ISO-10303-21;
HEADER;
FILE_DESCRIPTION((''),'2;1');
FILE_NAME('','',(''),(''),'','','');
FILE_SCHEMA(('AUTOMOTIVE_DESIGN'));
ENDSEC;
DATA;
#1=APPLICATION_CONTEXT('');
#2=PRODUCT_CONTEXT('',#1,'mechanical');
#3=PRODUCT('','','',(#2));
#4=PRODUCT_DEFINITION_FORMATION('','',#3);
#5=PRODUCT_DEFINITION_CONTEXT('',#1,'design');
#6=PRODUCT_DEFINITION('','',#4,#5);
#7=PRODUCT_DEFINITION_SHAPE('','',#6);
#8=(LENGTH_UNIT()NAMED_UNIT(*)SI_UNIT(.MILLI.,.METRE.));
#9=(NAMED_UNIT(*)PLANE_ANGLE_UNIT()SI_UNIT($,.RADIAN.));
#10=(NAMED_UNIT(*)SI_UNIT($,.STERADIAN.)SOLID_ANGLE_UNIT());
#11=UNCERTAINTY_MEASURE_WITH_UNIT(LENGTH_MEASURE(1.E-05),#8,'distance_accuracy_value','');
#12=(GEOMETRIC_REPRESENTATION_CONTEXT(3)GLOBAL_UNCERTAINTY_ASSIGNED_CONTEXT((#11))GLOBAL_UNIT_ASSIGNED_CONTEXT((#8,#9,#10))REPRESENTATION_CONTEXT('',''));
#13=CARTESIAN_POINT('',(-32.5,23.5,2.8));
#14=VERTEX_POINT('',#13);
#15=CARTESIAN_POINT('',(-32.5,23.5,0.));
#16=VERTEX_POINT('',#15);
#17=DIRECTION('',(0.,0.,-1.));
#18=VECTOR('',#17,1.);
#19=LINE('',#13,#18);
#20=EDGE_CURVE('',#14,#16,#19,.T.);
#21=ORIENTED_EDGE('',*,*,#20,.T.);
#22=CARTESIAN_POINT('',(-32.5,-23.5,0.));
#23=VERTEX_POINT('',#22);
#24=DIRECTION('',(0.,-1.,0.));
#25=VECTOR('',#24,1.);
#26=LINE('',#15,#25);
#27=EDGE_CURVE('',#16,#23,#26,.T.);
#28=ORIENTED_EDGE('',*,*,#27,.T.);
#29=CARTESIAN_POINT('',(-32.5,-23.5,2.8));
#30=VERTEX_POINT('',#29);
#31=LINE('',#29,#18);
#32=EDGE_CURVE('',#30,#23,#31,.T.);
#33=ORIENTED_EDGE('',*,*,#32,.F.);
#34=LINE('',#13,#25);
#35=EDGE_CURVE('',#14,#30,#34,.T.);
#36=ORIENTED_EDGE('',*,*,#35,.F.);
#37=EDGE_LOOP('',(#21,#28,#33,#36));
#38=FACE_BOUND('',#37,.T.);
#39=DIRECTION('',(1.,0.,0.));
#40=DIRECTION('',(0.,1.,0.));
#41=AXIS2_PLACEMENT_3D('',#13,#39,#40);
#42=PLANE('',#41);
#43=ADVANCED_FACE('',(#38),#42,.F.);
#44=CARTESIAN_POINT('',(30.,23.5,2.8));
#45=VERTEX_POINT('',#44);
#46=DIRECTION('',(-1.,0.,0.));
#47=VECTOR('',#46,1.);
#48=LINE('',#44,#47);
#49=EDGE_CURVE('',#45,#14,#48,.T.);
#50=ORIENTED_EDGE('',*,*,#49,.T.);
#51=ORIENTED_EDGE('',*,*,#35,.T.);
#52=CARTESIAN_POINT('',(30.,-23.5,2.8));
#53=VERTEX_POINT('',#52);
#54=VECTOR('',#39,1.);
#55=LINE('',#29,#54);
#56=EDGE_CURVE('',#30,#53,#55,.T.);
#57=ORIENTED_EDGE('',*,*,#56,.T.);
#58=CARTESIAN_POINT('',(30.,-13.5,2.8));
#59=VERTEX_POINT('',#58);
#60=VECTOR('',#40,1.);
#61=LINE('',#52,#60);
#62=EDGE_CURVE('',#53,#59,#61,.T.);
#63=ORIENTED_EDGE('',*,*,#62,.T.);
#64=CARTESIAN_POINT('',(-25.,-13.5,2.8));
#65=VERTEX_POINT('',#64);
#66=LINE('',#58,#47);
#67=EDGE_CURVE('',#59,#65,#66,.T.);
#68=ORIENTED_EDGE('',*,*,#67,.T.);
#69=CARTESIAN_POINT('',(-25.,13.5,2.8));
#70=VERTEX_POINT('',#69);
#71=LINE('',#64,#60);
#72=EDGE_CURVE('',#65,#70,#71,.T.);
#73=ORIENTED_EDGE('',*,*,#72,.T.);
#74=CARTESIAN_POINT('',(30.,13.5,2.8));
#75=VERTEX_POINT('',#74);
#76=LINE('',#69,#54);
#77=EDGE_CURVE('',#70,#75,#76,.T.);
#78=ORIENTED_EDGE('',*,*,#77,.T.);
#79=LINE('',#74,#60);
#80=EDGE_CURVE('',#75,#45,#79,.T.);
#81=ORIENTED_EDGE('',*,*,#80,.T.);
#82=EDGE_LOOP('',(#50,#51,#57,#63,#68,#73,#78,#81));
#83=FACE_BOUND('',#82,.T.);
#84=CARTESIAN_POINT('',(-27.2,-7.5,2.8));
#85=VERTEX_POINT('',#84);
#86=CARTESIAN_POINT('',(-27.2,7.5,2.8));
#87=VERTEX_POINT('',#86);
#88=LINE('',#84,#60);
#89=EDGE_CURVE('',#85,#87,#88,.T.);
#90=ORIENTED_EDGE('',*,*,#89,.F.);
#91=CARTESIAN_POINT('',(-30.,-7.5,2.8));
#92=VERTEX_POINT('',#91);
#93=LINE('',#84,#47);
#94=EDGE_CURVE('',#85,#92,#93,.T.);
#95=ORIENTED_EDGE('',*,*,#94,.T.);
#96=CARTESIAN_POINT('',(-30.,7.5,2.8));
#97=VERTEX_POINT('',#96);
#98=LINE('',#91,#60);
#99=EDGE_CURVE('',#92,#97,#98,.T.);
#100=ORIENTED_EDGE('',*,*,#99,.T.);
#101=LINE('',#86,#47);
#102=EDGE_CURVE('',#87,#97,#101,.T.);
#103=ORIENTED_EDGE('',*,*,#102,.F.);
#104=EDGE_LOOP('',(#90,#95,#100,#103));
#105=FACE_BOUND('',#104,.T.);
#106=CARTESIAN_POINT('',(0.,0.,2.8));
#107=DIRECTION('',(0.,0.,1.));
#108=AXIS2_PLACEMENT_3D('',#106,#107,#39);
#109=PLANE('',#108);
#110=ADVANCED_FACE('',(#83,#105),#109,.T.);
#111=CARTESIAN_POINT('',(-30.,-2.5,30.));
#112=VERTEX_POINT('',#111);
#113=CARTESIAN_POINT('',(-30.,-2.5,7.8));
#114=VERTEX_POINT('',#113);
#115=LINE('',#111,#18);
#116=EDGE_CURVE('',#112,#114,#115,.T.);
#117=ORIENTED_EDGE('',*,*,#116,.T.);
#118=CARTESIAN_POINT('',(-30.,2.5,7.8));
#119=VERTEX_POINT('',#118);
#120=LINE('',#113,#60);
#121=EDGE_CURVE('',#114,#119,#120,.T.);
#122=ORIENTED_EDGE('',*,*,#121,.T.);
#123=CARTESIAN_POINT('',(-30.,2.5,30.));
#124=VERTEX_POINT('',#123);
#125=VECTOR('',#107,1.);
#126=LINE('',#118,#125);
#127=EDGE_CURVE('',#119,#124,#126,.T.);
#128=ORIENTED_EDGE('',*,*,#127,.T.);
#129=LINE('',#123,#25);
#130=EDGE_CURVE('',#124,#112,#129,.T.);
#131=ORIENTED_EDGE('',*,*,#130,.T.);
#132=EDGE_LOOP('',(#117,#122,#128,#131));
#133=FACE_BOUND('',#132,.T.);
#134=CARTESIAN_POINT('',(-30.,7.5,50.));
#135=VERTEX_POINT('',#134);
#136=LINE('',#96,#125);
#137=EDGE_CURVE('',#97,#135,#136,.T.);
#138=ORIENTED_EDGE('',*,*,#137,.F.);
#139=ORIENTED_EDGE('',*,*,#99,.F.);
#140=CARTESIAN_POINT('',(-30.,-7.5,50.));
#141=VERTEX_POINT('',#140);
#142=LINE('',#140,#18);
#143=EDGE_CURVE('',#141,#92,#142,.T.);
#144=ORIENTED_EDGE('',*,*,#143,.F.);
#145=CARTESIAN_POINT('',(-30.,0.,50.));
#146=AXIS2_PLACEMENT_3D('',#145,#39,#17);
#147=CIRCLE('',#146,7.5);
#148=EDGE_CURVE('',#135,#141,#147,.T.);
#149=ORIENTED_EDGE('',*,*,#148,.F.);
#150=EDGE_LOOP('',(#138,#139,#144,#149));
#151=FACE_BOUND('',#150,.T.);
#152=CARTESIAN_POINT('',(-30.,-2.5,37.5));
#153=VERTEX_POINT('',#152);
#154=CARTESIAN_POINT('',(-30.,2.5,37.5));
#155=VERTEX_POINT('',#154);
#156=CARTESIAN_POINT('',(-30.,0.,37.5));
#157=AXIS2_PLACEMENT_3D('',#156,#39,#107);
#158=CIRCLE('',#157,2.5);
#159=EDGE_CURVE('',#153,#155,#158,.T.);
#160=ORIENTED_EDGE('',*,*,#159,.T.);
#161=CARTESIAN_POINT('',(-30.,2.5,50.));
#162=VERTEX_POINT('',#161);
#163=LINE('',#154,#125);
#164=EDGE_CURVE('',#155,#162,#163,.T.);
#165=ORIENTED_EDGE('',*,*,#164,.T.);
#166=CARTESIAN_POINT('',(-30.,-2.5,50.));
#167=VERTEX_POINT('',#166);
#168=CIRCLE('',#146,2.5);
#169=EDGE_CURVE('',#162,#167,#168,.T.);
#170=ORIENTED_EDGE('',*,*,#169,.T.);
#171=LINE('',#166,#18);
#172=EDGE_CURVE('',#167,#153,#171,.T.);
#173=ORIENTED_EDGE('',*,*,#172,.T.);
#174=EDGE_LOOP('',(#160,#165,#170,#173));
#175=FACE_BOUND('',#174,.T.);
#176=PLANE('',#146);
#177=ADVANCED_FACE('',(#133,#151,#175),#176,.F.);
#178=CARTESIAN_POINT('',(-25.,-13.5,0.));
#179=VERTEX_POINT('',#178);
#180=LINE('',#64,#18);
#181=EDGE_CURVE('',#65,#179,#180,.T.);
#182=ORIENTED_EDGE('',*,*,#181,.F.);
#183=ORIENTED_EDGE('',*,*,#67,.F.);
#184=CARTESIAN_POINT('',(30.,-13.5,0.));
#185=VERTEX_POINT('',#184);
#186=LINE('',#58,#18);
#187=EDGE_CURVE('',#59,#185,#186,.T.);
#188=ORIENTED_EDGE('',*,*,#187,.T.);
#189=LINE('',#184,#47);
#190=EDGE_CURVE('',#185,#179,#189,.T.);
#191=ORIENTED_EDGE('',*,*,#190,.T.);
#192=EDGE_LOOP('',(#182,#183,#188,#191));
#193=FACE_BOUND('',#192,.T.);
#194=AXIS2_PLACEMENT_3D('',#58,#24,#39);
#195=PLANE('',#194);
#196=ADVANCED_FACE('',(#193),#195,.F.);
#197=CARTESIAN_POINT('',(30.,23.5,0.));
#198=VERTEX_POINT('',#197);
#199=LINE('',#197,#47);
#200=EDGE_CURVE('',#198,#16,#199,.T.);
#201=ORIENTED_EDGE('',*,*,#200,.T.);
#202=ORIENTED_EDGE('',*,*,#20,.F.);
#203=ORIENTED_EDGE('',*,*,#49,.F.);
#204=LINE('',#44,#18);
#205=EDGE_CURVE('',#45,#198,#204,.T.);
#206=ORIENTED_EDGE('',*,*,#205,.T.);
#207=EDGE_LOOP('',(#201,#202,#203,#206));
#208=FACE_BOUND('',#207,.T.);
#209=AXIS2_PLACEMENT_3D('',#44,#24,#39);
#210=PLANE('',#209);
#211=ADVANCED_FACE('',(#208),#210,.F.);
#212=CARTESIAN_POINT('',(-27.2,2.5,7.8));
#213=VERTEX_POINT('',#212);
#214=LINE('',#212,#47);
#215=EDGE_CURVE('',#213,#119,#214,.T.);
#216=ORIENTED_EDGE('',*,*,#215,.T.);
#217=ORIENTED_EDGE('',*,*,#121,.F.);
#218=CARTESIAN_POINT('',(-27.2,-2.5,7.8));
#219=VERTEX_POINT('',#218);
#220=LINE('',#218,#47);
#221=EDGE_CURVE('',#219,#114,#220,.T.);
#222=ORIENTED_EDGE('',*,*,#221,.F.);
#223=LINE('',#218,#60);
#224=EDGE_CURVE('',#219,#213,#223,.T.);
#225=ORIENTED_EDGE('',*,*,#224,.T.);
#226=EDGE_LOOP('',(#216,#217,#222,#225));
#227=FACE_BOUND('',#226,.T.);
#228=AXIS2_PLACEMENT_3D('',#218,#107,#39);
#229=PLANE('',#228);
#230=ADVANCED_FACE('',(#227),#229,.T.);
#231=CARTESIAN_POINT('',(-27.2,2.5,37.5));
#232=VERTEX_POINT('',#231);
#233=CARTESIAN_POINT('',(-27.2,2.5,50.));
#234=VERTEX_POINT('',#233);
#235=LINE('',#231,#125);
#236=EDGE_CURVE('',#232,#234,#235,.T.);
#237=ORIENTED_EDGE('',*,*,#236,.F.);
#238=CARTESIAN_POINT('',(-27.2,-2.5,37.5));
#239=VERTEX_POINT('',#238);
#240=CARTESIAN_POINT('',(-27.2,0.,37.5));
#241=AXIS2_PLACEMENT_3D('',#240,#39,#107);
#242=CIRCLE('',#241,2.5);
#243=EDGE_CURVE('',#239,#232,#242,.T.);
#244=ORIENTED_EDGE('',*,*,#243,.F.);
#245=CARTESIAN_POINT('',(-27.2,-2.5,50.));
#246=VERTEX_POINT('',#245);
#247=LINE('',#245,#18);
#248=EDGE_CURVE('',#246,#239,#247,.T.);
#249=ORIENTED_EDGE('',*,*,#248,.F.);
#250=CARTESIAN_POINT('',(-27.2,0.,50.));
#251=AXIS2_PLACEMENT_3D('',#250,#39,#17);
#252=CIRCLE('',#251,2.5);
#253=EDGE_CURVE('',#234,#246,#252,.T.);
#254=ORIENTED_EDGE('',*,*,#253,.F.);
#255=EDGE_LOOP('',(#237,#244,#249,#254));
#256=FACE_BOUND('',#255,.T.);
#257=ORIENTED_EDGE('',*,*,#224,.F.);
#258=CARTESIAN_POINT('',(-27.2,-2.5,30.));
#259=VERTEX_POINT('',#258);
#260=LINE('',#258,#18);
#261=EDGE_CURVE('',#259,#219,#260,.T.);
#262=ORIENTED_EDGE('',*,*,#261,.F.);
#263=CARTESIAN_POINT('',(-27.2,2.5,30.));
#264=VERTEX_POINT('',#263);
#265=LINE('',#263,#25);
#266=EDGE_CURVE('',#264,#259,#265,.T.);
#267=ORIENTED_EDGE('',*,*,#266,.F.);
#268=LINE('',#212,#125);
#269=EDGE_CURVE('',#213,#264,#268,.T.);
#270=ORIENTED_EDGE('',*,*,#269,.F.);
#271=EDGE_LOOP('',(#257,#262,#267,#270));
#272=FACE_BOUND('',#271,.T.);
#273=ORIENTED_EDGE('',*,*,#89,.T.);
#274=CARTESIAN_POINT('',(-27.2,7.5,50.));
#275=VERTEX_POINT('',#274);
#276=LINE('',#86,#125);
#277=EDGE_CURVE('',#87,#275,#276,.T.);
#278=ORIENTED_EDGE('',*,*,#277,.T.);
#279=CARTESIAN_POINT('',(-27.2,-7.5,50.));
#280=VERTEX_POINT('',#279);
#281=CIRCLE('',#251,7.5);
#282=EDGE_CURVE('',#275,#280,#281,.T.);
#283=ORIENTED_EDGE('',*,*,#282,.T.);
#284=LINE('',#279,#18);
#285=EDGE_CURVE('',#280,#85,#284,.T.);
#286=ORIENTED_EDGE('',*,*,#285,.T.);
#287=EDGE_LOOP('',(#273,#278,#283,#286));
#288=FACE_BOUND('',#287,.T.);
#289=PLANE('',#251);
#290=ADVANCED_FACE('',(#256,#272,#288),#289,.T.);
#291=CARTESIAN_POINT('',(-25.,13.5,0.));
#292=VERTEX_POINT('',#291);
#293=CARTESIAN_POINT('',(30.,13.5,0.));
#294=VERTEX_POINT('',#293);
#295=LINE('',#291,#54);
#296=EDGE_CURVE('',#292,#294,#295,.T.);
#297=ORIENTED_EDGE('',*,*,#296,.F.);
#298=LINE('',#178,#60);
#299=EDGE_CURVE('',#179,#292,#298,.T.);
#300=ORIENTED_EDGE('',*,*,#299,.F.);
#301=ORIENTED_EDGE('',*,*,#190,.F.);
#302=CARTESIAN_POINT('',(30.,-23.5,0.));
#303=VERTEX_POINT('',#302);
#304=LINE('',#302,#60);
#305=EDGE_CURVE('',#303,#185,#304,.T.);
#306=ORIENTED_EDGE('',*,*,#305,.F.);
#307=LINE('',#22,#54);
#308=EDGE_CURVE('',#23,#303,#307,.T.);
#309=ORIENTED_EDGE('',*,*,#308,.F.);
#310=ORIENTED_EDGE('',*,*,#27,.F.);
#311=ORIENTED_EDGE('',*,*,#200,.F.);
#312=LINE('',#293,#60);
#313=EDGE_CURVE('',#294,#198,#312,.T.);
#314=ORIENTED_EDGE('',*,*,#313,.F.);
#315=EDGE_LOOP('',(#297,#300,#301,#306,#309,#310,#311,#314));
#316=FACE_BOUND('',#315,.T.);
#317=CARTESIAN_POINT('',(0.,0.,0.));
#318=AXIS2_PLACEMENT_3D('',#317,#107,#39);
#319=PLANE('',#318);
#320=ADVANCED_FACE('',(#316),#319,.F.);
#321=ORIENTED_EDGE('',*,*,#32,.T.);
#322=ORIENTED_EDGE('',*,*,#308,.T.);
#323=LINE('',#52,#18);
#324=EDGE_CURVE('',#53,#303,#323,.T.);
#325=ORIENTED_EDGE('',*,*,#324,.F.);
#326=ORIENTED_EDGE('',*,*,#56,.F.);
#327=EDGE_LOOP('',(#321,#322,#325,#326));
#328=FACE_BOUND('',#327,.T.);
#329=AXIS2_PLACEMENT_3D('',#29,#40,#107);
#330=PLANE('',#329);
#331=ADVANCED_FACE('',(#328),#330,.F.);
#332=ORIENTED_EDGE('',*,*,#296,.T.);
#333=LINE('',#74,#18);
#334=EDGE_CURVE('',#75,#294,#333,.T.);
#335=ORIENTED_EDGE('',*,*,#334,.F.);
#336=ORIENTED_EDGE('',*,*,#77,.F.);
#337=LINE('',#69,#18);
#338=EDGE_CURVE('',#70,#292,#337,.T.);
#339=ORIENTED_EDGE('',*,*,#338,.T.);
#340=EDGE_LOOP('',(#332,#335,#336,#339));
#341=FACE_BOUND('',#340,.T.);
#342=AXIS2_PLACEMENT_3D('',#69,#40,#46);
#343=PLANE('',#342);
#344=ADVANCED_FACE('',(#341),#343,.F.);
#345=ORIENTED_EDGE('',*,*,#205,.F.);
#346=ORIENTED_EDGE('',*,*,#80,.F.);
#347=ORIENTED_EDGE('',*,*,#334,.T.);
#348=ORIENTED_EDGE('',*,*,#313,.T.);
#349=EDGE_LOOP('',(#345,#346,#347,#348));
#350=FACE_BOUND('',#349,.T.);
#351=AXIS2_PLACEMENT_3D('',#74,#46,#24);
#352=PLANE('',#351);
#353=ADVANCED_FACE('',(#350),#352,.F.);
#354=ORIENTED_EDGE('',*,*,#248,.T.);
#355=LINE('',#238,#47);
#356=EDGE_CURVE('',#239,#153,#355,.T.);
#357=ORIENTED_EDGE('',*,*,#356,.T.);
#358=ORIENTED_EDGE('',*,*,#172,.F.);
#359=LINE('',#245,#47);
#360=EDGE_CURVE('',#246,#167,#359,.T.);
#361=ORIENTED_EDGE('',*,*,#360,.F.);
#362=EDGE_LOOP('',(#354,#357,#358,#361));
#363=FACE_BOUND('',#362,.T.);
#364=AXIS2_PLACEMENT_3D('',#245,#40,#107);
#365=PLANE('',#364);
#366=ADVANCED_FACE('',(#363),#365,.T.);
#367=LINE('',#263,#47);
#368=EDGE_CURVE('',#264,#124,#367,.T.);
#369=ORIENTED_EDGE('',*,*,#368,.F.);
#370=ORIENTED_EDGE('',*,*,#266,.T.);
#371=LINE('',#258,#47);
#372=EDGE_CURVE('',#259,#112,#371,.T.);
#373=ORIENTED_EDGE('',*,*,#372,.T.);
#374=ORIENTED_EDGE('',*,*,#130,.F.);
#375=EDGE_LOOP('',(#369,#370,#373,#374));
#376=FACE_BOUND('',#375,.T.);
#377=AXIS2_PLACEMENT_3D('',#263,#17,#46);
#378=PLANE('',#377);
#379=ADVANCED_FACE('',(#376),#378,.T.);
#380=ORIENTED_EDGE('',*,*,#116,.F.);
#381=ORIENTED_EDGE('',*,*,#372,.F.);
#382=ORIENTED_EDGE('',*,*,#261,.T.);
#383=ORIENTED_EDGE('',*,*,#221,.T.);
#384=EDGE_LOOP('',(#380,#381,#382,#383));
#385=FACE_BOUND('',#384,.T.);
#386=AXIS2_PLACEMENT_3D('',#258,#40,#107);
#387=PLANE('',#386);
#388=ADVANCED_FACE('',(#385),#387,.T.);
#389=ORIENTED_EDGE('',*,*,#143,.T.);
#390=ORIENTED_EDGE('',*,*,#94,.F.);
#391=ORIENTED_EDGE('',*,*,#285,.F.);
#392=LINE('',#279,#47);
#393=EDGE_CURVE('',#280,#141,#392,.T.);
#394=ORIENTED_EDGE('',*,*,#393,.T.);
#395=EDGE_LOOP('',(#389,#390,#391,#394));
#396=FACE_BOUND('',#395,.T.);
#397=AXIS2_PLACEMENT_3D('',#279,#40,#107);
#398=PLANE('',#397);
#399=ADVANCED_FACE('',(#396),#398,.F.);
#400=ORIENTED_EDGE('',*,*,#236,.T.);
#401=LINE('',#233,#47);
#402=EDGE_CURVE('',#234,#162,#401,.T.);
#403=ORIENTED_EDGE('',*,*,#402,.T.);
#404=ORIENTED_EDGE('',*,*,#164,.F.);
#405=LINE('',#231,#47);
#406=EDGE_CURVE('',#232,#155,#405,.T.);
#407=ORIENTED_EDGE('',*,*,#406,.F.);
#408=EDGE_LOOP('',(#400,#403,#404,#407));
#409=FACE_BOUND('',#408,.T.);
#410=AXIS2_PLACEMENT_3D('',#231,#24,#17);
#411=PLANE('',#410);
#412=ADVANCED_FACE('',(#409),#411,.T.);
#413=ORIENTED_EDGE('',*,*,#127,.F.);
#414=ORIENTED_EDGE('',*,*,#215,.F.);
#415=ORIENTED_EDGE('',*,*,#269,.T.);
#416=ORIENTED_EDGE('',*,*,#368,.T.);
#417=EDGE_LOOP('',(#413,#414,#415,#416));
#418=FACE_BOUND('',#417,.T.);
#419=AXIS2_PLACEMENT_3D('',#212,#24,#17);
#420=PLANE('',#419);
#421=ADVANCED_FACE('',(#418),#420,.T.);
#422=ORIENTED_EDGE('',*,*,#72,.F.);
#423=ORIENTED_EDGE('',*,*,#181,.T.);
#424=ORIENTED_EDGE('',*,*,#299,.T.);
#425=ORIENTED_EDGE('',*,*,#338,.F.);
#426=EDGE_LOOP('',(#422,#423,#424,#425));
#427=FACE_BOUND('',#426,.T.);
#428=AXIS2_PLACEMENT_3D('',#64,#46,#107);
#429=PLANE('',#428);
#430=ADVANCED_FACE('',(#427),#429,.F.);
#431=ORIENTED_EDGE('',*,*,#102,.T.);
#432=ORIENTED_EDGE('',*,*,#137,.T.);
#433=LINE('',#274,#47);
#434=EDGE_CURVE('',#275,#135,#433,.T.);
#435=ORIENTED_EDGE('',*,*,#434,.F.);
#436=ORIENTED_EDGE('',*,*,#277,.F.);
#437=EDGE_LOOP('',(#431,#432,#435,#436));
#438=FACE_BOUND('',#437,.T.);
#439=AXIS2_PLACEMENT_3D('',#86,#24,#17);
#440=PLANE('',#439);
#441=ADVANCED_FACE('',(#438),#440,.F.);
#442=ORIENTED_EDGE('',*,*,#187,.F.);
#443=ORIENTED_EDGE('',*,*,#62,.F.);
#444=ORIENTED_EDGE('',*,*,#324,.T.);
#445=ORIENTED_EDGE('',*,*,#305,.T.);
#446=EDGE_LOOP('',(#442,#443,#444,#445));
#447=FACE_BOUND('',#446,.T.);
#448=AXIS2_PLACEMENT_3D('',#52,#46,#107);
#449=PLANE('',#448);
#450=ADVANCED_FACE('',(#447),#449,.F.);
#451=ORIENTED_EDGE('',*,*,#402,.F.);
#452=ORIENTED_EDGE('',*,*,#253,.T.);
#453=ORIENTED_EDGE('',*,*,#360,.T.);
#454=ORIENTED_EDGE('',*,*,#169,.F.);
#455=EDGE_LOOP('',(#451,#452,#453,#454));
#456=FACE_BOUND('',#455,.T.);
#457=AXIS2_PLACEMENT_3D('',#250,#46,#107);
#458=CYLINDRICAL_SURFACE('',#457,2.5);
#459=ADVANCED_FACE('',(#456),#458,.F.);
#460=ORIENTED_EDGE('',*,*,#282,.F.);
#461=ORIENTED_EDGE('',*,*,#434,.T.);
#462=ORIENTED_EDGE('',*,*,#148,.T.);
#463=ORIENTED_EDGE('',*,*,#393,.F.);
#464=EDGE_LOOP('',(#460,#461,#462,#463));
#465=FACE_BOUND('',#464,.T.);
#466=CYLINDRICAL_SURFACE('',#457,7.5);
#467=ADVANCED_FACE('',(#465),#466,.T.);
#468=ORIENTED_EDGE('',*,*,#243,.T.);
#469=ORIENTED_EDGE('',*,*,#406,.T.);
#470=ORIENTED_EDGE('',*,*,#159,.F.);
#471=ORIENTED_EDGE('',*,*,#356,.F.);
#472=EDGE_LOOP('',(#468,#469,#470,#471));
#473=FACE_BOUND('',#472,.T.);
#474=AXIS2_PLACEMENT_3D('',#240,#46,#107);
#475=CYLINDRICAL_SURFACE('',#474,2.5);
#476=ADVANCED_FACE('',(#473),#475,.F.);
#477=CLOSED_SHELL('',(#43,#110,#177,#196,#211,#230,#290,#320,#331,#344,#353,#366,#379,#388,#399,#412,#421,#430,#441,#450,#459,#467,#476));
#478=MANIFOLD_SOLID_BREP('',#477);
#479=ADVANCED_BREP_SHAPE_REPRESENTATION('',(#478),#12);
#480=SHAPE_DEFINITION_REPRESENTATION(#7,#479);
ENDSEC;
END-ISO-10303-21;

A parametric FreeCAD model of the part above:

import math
import FreeCAD as App
import Part
import Sketcher


def add_polygon(sketch, points):
    """Adds a closed chain of lines whose ends are joined by coincident constraints."""
    first, n = sketch.GeometryCount, len(points)
    for a, b in zip(points, points[1:] + points[:1]):
        sketch.addGeometry(Part.LineSegment(App.Vector(*a, 0), App.Vector(*b, 0)), False)
    for i in range(n):
        sketch.addConstraint(Sketcher.Constraint("Coincident", first + i, 2, first + (i + 1) % n, 1))

doc = App.newDocument("Part")
body = doc.addObject("PartDesign::Body", "Body")

sketch1 = body.newObject("Sketcher::SketchObject", "Sketch")
sketch1.AttachmentSupport = (doc.getObject("XY_Plane"), [""])
sketch1.MapMode = "FlatFace"
add_polygon(sketch1, [(30, 14), (30, 24), (-32, 24), (-32, -24), (30, -24), (30, -14), (-25, -14), (-25, 14)])
sketch1.addConstraint([
    Sketcher.Constraint("Vertical", 0),
    Sketcher.Constraint("Horizontal", 1),
    Sketcher.Constraint("Vertical", 2),
    Sketcher.Constraint("Horizontal", 3),
    Sketcher.Constraint("Vertical", 4),
    Sketcher.Constraint("Horizontal", 5),
    Sketcher.Constraint("Vertical", 6),
    Sketcher.Constraint("Horizontal", 7),
    Sketcher.Constraint("Symmetric", 0, 2, 3, 2, -1),
    Sketcher.Constraint("Equal", 0, 4),
    Sketcher.Constraint("DistanceX", 5, 2, 5, 1, 55.0),
    Sketcher.Constraint("DistanceY", 0, 1, 0, 2, 10.0),
    Sketcher.Constraint("DistanceY", 2, 2, 2, 1, 47.0),
    Sketcher.Constraint("DistanceX", 1, 2, 1, 1, 62.5),
    Sketcher.Constraint("DistanceX", -1, 1, 0, 2, 30.0),
])
pad1 = body.newObject("PartDesign::Pad", "Pad")
pad1.Profile = sketch1
pad1.Length = 2.8

sketch2 = body.newObject("Sketcher::SketchObject", "Sketch001")
sketch2.AttachmentSupport = (doc.getObject("YZ_Plane"), [""])
sketch2.MapMode = "FlatFace"
sketch2.AttachmentOffset = App.Placement(App.Vector(0, 0, -30), App.Rotation())
sketch2.addGeometry(Part.LineSegment(App.Vector(-7.5, 2.8, 0), App.Vector(7.5, 2.8, 0)), False)
sketch2.addGeometry(Part.LineSegment(App.Vector(7.5, 2.8, 0), App.Vector(7.5, 50, 0)), False)
sketch2.addGeometry(Part.ArcOfCircle(Part.Circle(App.Vector(0, 50, 0), App.Vector(0, 0, 1), 7.5), math.radians(0), math.radians(180)), False)
sketch2.addGeometry(Part.LineSegment(App.Vector(-7.5, 50, 0), App.Vector(-7.5, 2.8, 0)), False)
sketch2.addGeometry(Part.LineSegment(App.Vector(-2.5, 37.5, 0), App.Vector(-2.5, 50, 0)), False)
sketch2.addGeometry(Part.ArcOfCircle(Part.Circle(App.Vector(0, 50, 0), App.Vector(0, 0, 1), 2.5), math.radians(0), math.radians(180)), False)
sketch2.addGeometry(Part.LineSegment(App.Vector(2.5, 50, 0), App.Vector(2.5, 37.5, 0)), False)
sketch2.addGeometry(Part.ArcOfCircle(Part.Circle(App.Vector(0, 37.5, 0), App.Vector(0, 0, 1), 2.5), math.radians(180), math.radians(360)), False)
add_polygon(sketch2, [(-2.5, 7.8), (-2.5, 30), (2.5, 30), (2.5, 7.8)])
sketch2.addConstraint([
    Sketcher.Constraint("Coincident", 0, 2, 1, 1),
    Sketcher.Constraint("Tangent", 1, 2, 2, 1),
    Sketcher.Constraint("Tangent", 2, 2, 3, 1),
    Sketcher.Constraint("Coincident", 3, 2, 0, 1),
    Sketcher.Constraint("Tangent", 4, 2, 5, 2),
    Sketcher.Constraint("Tangent", 5, 1, 6, 1),
    Sketcher.Constraint("Tangent", 6, 2, 7, 2),
    Sketcher.Constraint("Tangent", 7, 1, 4, 1),
    Sketcher.Constraint("Horizontal", 0),
    Sketcher.Constraint("Vertical", 1),
    Sketcher.Constraint("Vertical", 3),
    Sketcher.Constraint("Vertical", 4),
    Sketcher.Constraint("Vertical", 6),
    Sketcher.Constraint("Vertical", 8),
    Sketcher.Constraint("Horizontal", 9),
    Sketcher.Constraint("Vertical", 10),
    Sketcher.Constraint("Horizontal", 11),
    Sketcher.Constraint("Coincident", 5, 3, 2, 3),
    Sketcher.Constraint("PointOnObject", 2, 3, -2),
    Sketcher.Constraint("Vertical", 7, 1, 8, 2),
    Sketcher.Constraint("Vertical", 6, 2, 9, 2),
    Sketcher.Constraint("Radius", 2, 7.5),
    Sketcher.Constraint("Radius", 5, 2.5),
    Sketcher.Constraint("DistanceY", 1, 1, 1, 2, 47.2),
    Sketcher.Constraint("DistanceY", 4, 1, 4, 2, 12.5),
    Sketcher.Constraint("DistanceY", 8, 1, 8, 2, 22.2),
    Sketcher.Constraint("DistanceY", -1, 1, 2, 3, 50.0),
    Sketcher.Constraint("DistanceY", -1, 1, 8, 2, 30.0),
])
pad2 = body.newObject("PartDesign::Pad", "Pad001")
pad2.Profile = sketch2
pad2.Length = 2.8

doc.recompute()
